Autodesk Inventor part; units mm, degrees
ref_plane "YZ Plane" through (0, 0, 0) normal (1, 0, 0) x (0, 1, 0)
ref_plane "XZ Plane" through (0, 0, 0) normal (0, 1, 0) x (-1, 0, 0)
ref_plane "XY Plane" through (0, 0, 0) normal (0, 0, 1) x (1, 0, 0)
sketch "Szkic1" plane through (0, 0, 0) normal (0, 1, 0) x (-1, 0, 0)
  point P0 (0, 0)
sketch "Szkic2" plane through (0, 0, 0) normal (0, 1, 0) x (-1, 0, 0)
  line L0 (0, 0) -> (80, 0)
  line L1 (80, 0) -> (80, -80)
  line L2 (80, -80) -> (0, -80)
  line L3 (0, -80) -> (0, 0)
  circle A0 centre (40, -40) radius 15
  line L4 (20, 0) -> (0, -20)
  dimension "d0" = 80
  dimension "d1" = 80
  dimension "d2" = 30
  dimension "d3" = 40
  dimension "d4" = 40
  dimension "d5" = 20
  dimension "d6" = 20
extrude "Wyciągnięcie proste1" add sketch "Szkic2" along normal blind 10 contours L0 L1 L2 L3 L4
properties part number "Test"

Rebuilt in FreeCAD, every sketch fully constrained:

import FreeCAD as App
import Part
import Sketcher
from FreeCAD import Vector

doc = App.newDocument("Part")
body = doc.addObject("PartDesign::Body", "Body")

# Sketch on XZ plane
sketch1 = doc.addObject("Sketcher::SketchObject", "Sketch")
body.addObject(sketch1)
sketch1.AttachmentSupport = (doc.XZ_Plane, [""])
sketch1.MapMode = "FlatFace"
sketch1.addGeometry([
    Part.LineSegment(Vector(-80, 0, 0), Vector(-20, 0, 0)),  # 0
    Part.LineSegment(Vector(-20, 0, 0), Vector(0, -20, 0)),  # 1
    Part.LineSegment(Vector(0, -20, 0), Vector(0, -80, 0)),  # 2
    Part.LineSegment(Vector(0, -80, 0), Vector(-80, -80, 0)),  # 3
    Part.LineSegment(Vector(-80, -80, 0), Vector(-80, 0, 0)),  # 4
    Part.Circle(Vector(-40, -40, 0), Vector(0, 0, 1), 15),  # 5
], False)
sketch1.addConstraint([
    Sketcher.Constraint("Coincident", 0, 2, 1, 1),
    Sketcher.Constraint("Coincident", 1, 2, 2, 1),
    Sketcher.Constraint("Coincident", 2, 2, 3, 1),
    Sketcher.Constraint("Coincident", 3, 2, 4, 1),
    Sketcher.Constraint("Coincident", 4, 2, 0, 1),
    Sketcher.Constraint("Horizontal", 0),
    Sketcher.Constraint("Vertical", 2),
    Sketcher.Constraint("Horizontal", 3),
    Sketcher.Constraint("Vertical", 4),
    Sketcher.Constraint("PointOnObject", 0, 2, -1),
    Sketcher.Constraint("PointOnObject", 1, 2, -2),
    Sketcher.Constraint("Equal", 0, 2),
    Sketcher.Constraint("Equal", 3, 4),
    Sketcher.Constraint("Diameter", 5, 30.0),
    Sketcher.Constraint("DistanceX", 3, 2, 3, 1, 80.0),
    Sketcher.Constraint("DistanceX", 5, 3, -1, 1, 40.0),
    Sketcher.Constraint("DistanceY", 5, 3, -1, 1, 40.0),
    Sketcher.Constraint("DistanceX", 0, 2, -1, 1, 20.0),
])
pad1 = doc.addObject("PartDesign::Pad", "Pad")
body.addObject(pad1)
pad1.Profile = sketch1
pad1.Length = 10
pad1.Reversed = True

doc.recompute()
